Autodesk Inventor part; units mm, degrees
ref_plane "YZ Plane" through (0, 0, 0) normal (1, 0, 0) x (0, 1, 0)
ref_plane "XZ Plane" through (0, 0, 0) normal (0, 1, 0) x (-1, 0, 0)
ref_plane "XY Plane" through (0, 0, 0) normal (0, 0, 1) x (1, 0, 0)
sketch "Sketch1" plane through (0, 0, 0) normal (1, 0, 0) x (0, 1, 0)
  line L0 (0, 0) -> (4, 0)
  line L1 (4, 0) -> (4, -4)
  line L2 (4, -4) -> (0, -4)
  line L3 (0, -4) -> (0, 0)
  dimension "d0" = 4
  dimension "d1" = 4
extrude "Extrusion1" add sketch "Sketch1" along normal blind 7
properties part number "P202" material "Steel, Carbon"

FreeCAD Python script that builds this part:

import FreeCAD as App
import Part
import Sketcher
from FreeCAD import Vector


def add_polygon(sketch, points):
    """Adds a closed chain of lines whose ends are joined by coincident constraints."""
    first, n = sketch.GeometryCount, len(points)
    for a, b in zip(points, points[1:] + points[:1]):
        sketch.addGeometry(Part.LineSegment(App.Vector(*a, 0), App.Vector(*b, 0)), False)
    for i in range(n):
        sketch.addConstraint(Sketcher.Constraint("Coincident", first + i, 2, first + (i + 1) % n, 1))

doc = App.newDocument("Part")
body = doc.addObject("PartDesign::Body", "Body")

# Sketch on YZ plane
sketch1 = body.newObject("Sketcher::SketchObject", "Sketch")
sketch1.AttachmentSupport = (doc.getObject("YZ_Plane"), [""])
sketch1.MapMode = "FlatFace"
add_polygon(sketch1, [(4, 0), (0, 0), (0, -4), (4, -4)])  # lines 0-3
sketch1.addConstraint([
    Sketcher.Constraint("Horizontal", 0),
    Sketcher.Constraint("Vertical", 1),
    Sketcher.Constraint("Horizontal", 2),
    Sketcher.Constraint("Vertical", 3),
    Sketcher.Constraint("Coincident", 0, 2, -1, 1),
    Sketcher.Constraint("Equal", 2, 1),
    Sketcher.Constraint("DistanceX", 0, 2, 0, 1, 4.0),
])
pad1 = body.newObject("PartDesign::Pad", "Pad")
pad1.Profile = sketch1
pad1.Length = 7

doc.recompute()
